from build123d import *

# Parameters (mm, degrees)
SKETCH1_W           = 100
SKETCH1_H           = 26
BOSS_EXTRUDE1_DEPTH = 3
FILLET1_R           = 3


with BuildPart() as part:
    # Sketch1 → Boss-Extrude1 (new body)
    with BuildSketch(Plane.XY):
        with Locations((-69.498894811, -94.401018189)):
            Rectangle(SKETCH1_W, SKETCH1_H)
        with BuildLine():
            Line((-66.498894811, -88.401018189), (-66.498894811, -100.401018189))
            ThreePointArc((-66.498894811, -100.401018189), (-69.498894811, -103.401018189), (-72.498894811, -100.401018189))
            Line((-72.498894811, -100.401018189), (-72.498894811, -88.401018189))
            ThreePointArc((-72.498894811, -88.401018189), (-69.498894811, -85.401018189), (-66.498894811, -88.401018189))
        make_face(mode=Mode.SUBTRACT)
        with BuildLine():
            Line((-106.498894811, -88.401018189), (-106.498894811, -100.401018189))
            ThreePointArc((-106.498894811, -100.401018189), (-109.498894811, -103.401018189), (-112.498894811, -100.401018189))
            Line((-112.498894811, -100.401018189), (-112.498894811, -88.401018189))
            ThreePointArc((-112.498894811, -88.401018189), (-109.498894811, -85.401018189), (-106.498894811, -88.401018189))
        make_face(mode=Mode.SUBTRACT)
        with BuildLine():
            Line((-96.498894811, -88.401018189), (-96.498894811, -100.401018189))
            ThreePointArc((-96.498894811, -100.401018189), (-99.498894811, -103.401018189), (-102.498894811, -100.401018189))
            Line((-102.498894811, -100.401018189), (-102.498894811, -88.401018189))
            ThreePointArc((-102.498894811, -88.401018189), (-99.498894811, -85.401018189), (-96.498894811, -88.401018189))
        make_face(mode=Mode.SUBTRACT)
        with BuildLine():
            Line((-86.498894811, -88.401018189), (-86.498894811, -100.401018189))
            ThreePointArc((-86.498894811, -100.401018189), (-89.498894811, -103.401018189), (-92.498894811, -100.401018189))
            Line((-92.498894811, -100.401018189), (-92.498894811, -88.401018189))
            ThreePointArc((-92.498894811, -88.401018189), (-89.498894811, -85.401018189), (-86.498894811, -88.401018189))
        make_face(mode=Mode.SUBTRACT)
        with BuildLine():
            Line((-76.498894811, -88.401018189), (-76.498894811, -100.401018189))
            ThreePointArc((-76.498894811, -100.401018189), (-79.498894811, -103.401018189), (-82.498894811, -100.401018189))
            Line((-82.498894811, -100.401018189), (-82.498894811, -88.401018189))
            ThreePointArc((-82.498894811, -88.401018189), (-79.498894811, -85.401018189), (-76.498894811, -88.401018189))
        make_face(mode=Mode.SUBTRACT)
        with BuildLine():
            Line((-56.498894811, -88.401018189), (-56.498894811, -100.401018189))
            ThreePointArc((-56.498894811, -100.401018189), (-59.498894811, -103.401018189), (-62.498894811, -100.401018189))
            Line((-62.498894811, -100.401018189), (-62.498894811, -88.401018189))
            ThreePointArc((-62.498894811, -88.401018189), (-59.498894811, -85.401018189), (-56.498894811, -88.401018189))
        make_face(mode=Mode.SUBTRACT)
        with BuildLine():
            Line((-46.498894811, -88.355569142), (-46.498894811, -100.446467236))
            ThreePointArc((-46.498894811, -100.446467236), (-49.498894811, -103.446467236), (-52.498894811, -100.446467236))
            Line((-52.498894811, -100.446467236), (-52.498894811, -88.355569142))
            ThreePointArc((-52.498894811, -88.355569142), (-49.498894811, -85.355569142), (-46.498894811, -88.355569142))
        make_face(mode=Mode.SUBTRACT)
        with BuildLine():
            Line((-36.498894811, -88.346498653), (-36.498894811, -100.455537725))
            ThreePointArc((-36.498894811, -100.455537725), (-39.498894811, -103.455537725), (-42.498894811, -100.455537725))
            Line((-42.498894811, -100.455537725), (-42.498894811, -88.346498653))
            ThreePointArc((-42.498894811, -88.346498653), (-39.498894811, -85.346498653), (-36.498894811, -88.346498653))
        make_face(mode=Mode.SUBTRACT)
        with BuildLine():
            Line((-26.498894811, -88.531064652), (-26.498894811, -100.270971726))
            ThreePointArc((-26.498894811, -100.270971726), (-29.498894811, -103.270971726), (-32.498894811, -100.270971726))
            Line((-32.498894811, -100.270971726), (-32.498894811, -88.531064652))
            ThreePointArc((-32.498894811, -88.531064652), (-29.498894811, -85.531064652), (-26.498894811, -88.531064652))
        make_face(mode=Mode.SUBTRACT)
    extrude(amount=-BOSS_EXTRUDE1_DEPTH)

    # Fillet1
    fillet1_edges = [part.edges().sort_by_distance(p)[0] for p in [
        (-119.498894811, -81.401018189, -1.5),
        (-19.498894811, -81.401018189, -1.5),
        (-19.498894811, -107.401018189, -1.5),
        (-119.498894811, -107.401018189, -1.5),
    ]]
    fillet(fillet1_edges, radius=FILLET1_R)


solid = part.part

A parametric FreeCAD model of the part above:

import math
import FreeCAD as App
import Part
import Sketcher


def edges_at(feature, points):
    """Names of the edges that pass closest to the given points."""
    edges = feature.Shape.Edges
    near = lambda p: min(range(len(edges)), key=lambda i: edges[i].distToShape(Part.Vertex(*p))[0])
    return sorted({f"Edge{near(p) + 1}" for p in points})


def add_polygon(sketch, points):
    """Adds a closed chain of lines whose ends are joined by coincident constraints."""
    first, n = sketch.GeometryCount, len(points)
    for a, b in zip(points, points[1:] + points[:1]):
        sketch.addGeometry(Part.LineSegment(App.Vector(*a, 0), App.Vector(*b, 0)), False)
    for i in range(n):
        sketch.addConstraint(Sketcher.Constraint("Coincident", first + i, 2, first + (i + 1) % n, 1))

doc = App.newDocument("Part")
params = doc.addObject("Spreadsheet::Sheet", "Params")
for row, (alias, value) in enumerate([
    ("sketch1_radius", "3 mm"),
    ("sketch1_width", "100 mm"),
    ("sketch1_height", "26 mm"),
    ("sketch1_height2", "12 mm"),
    ("pad1_length", "3 mm"),
    ("fillet_radius", "3 mm"),
], start=1):
    params.set(f"A{row}", alias)
    params.set(f"B{row}", "=" + value)
    params.setAlias(f"B{row}", alias)

body = doc.addObject("PartDesign::Body", "Body")

# Sketch on XY plane
sketch1 = doc.addObject("Sketcher::SketchObject", "Sketch")
body.addObject(sketch1)
sketch1.AttachmentSupport = (doc.XY_Plane, [""])
sketch1.MapMode = "FlatFace"
add_polygon(sketch1, [(-119.5, -81.4), (-119.5, -107.4), (-19.5, -107.4), (-19.5, -81.4)])  # lines 0-3
sketch1.addGeometry(Part.ArcOfCircle(Part.Circle(App.Vector(-109.5, -88.4, 0), App.Vector(0, 0, 1), 3), math.radians(0), math.radians(180)), False)  # 4
sketch1.addGeometry(Part.LineSegment(App.Vector(-106.5, -88.4, 0), App.Vector(-106.5, -100.4, 0)), False)  # 5
sketch1.addGeometry(Part.ArcOfCircle(Part.Circle(App.Vector(-109.5, -100.4, 0), App.Vector(0, 0, 1), 3), math.radians(180), math.radians(360)), False)  # 6
sketch1.addGeometry(Part.LineSegment(App.Vector(-112.5, -100.4, 0), App.Vector(-112.5, -88.4, 0)), False)  # 7
sketch1.addGeometry(Part.ArcOfCircle(Part.Circle(App.Vector(-99.5, -88.4, 0), App.Vector(0, 0, 1), 3), math.radians(0), math.radians(180)), False)  # 8
sketch1.addGeometry(Part.LineSegment(App.Vector(-96.5, -88.4, 0), App.Vector(-96.5, -100.4, 0)), False)  # 9
sketch1.addGeometry(Part.ArcOfCircle(Part.Circle(App.Vector(-99.5, -100.4, 0), App.Vector(0, 0, 1), 3), math.radians(180), math.radians(360)), False)  # 10
sketch1.addGeometry(Part.LineSegment(App.Vector(-102.5, -100.4, 0), App.Vector(-102.5, -88.4, 0)), False)  # 11
sketch1.addGeometry(Part.ArcOfCircle(Part.Circle(App.Vector(-89.5, -88.4, 0), App.Vector(0, 0, 1), 3), math.radians(0), math.radians(180)), False)  # 12
sketch1.addGeometry(Part.LineSegment(App.Vector(-86.5, -88.4, 0), App.Vector(-86.5, -100.4, 0)), False)  # 13
sketch1.addGeometry(Part.ArcOfCircle(Part.Circle(App.Vector(-89.5, -100.4, 0), App.Vector(0, 0, 1), 3), math.radians(180), math.radians(360)), False)  # 14
sketch1.addGeometry(Part.LineSegment(App.Vector(-92.5, -100.4, 0), App.Vector(-92.5, -88.4, 0)), False)  # 15
sketch1.addGeometry(Part.ArcOfCircle(Part.Circle(App.Vector(-79.5, -88.4, 0), App.Vector(0, 0, 1), 3), math.radians(0), math.radians(180)), False)  # 16
sketch1.addGeometry(Part.LineSegment(App.Vector(-76.5, -88.4, 0), App.Vector(-76.5, -100.4, 0)), False)  # 17
sketch1.addGeometry(Part.ArcOfCircle(Part.Circle(App.Vector(-79.5, -100.4, 0), App.Vector(0, 0, 1), 3), math.radians(180), math.radians(360)), False)  # 18
sketch1.addGeometry(Part.LineSegment(App.Vector(-82.5, -100.4, 0), App.Vector(-82.5, -88.4, 0)), False)  # 19
sketch1.addGeometry(Part.ArcOfCircle(Part.Circle(App.Vector(-69.5, -88.4, 0), App.Vector(0, 0, 1), 3), math.radians(0), math.radians(180)), False)  # 20
sketch1.addGeometry(Part.LineSegment(App.Vector(-66.5, -88.4, 0), App.Vector(-66.5, -100.4, 0)), False)  # 21
sketch1.addGeometry(Part.ArcOfCircle(Part.Circle(App.Vector(-69.5, -100.4, 0), App.Vector(0, 0, 1), 3), math.radians(180), math.radians(360)), False)  # 22
sketch1.addGeometry(Part.LineSegment(App.Vector(-72.5, -100.4, 0), App.Vector(-72.5, -88.4, 0)), False)  # 23
sketch1.addGeometry(Part.ArcOfCircle(Part.Circle(App.Vector(-59.5, -88.4, 0), App.Vector(0, 0, 1), 3), math.radians(0), math.radians(180)), False)  # 24
sketch1.addGeometry(Part.LineSegment(App.Vector(-56.5, -88.4, 0), App.Vector(-56.5, -100.4, 0)), False)  # 25
sketch1.addGeometry(Part.ArcOfCircle(Part.Circle(App.Vector(-59.5, -100.4, 0), App.Vector(0, 0, 1), 3), math.radians(180), math.radians(360)), False)  # 26
sketch1.addGeometry(Part.LineSegment(App.Vector(-62.5, -100.4, 0), App.Vector(-62.5, -88.4, 0)), False)  # 27
sketch1.addGeometry(Part.ArcOfCircle(Part.Circle(App.Vector(-49.5, -88.4, 0), App.Vector(0, 0, 1), 3), math.radians(0), math.radians(180)), False)  # 28
sketch1.addGeometry(Part.LineSegment(App.Vector(-46.5, -88.4, 0), App.Vector(-46.5, -100.4, 0)), False)  # 29
sketch1.addGeometry(Part.ArcOfCircle(Part.Circle(App.Vector(-49.5, -100.4, 0), App.Vector(0, 0, 1), 3), math.radians(180), math.radians(360)), False)  # 30
sketch1.addGeometry(Part.LineSegment(App.Vector(-52.5, -100.4, 0), App.Vector(-52.5, -88.4, 0)), False)  # 31
sketch1.addGeometry(Part.ArcOfCircle(Part.Circle(App.Vector(-39.5, -88.3, 0), App.Vector(0, 0, 1), 3), math.radians(0), math.radians(180)), False)  # 32
sketch1.addGeometry(Part.LineSegment(App.Vector(-36.5, -88.3, 0), App.Vector(-36.5, -100.5, 0)), False)  # 33
sketch1.addGeometry(Part.ArcOfCircle(Part.Circle(App.Vector(-39.5, -100.5, 0), App.Vector(0, 0, 1), 3), math.radians(180), math.radians(360)), False)  # 34
sketch1.addGeometry(Part.LineSegment(App.Vector(-42.5, -100.5, 0), App.Vector(-42.5, -88.3, 0)), False)  # 35
sketch1.addGeometry(Part.ArcOfCircle(Part.Circle(App.Vector(-29.5, -88.5, 0), App.Vector(0, 0, 1), 3), math.radians(0), math.radians(180)), False)  # 36
sketch1.addGeometry(Part.LineSegment(App.Vector(-26.5, -88.5, 0), App.Vector(-26.5, -100.3, 0)), False)  # 37
sketch1.addGeometry(Part.ArcOfCircle(Part.Circle(App.Vector(-29.5, -100.3, 0), App.Vector(0, 0, 1), 3), math.radians(180), math.radians(360)), False)  # 38
sketch1.addGeometry(Part.LineSegment(App.Vector(-32.5, -100.3, 0), App.Vector(-32.5, -88.5, 0)), False)  # 39
sketch1.addConstraint(Sketcher.Constraint("Tangent", 4, 1, 5, 1))
sketch1.addConstraint(Sketcher.Constraint("Tangent", 5, 2, 6, 2))
sketch1.addConstraint(Sketcher.Constraint("Tangent", 6, 1, 7, 1))
sketch1.addConstraint(Sketcher.Constraint("Tangent", 7, 2, 4, 2))
sketch1.addConstraint(Sketcher.Constraint("Tangent", 8, 1, 9, 1))
sketch1.addConstraint(Sketcher.Constraint("Tangent", 9, 2, 10, 2))
sketch1.addConstraint(Sketcher.Constraint("Tangent", 10, 1, 11, 1))
sketch1.addConstraint(Sketcher.Constraint("Tangent", 11, 2, 8, 2))
sketch1.addConstraint(Sketcher.Constraint("Tangent", 12, 1, 13, 1))
sketch1.addConstraint(Sketcher.Constraint("Tangent", 13, 2, 14, 2))
sketch1.addConstraint(Sketcher.Constraint("Tangent", 14, 1, 15, 1))
sketch1.addConstraint(Sketcher.Constraint("Tangent", 15, 2, 12, 2))
sketch1.addConstraint(Sketcher.Constraint("Tangent", 16, 1, 17, 1))
sketch1.addConstraint(Sketcher.Constraint("Tangent", 17, 2, 18, 2))
sketch1.addConstraint(Sketcher.Constraint("Tangent", 18, 1, 19, 1))
sketch1.addConstraint(Sketcher.Constraint("Tangent", 19, 2, 16, 2))
sketch1.addConstraint(Sketcher.Constraint("Tangent", 20, 1, 21, 1))
sketch1.addConstraint(Sketcher.Constraint("Tangent", 21, 2, 22, 2))
sketch1.addConstraint(Sketcher.Constraint("Tangent", 22, 1, 23, 1))
sketch1.addConstraint(Sketcher.Constraint("Tangent", 23, 2, 20, 2))
sketch1.addConstraint(Sketcher.Constraint("Tangent", 24, 1, 25, 1))
sketch1.addConstraint(Sketcher.Constraint("Tangent", 25, 2, 26, 2))
sketch1.addConstraint(Sketcher.Constraint("Tangent", 26, 1, 27, 1))
sketch1.addConstraint(Sketcher.Constraint("Tangent", 27, 2, 24, 2))
sketch1.addConstraint(Sketcher.Constraint("Tangent", 28, 1, 29, 1))
sketch1.addConstraint(Sketcher.Constraint("Tangent", 29, 2, 30, 2))
sketch1.addConstraint(Sketcher.Constraint("Tangent", 30, 1, 31, 1))
sketch1.addConstraint(Sketcher.Constraint("Tangent", 31, 2, 28, 2))
sketch1.addConstraint(Sketcher.Constraint("Tangent", 32, 1, 33, 1))
sketch1.addConstraint(Sketcher.Constraint("Tangent", 33, 2, 34, 2))
sketch1.addConstraint(Sketcher.Constraint("Tangent", 34, 1, 35, 1))
sketch1.addConstraint(Sketcher.Constraint("Tangent", 35, 2, 32, 2))
sketch1.addConstraint(Sketcher.Constraint("Tangent", 36, 1, 37, 1))
sketch1.addConstraint(Sketcher.Constraint("Tangent", 37, 2, 38, 2))
sketch1.addConstraint(Sketcher.Constraint("Tangent", 38, 1, 39, 1))
sketch1.addConstraint(Sketcher.Constraint("Tangent", 39, 2, 36, 2))
sketch1.addConstraint(Sketcher.Constraint("Vertical", 0))
sketch1.addConstraint(Sketcher.Constraint("Horizontal", 1))
sketch1.addConstraint(Sketcher.Constraint("Vertical", 2))
sketch1.addConstraint(Sketcher.Constraint("Horizontal", 3))
sketch1.addConstraint(Sketcher.Constraint("Vertical", 5))
sketch1.addConstraint(Sketcher.Constraint("Vertical", 7))
sketch1.addConstraint(Sketcher.Constraint("Vertical", 9))
sketch1.addConstraint(Sketcher.Constraint("Vertical", 11))
sketch1.addConstraint(Sketcher.Constraint("Vertical", 13))
sketch1.addConstraint(Sketcher.Constraint("Vertical", 15))
sketch1.addConstraint(Sketcher.Constraint("Vertical", 17))
sketch1.addConstraint(Sketcher.Constraint("Vertical", 19))
sketch1.addConstraint(Sketcher.Constraint("Vertical", 21))
sketch1.addConstraint(Sketcher.Constraint("Vertical", 23))
sketch1.addConstraint(Sketcher.Constraint("Vertical", 25))
sketch1.addConstraint(Sketcher.Constraint("Vertical", 27))
sketch1.addConstraint(Sketcher.Constraint("Vertical", 29))
sketch1.addConstraint(Sketcher.Constraint("Vertical", 31))
sketch1.addConstraint(Sketcher.Constraint("Vertical", 33))
sketch1.addConstraint(Sketcher.Constraint("Vertical", 35))
sketch1.addConstraint(Sketcher.Constraint("Vertical", 37))
sketch1.addConstraint(Sketcher.Constraint("Vertical", 39))
sketch1.addConstraint(Sketcher.Constraint("Equal", 6, 8))
sketch1.addConstraint(Sketcher.Constraint("Equal", 10, 12))
sketch1.addConstraint(Sketcher.Constraint("Equal", 14, 16))
sketch1.addConstraint(Sketcher.Constraint("Equal", 18, 20))
sketch1.addConstraint(Sketcher.Constraint("Equal", 22, 24))
sketch1.addConstraint(Sketcher.Constraint("Equal", 26, 28))
sketch1.addConstraint(Sketcher.Constraint("Equal", 30, 32))
sketch1.addConstraint(Sketcher.Constraint("Equal", 34, 36))
sketch1.addConstraint(Sketcher.Constraint("Horizontal", 4, 3, 8, 3))
sketch1.addConstraint(Sketcher.Constraint("Horizontal", 6, 3, 10, 3))
sketch1.addConstraint(Sketcher.Constraint("Horizontal", 8, 3, 12, 3))
sketch1.addConstraint(Sketcher.Constraint("Horizontal", 10, 3, 14, 3))
sketch1.addConstraint(Sketcher.Constraint("Horizontal", 12, 3, 16, 3))
sketch1.addConstraint(Sketcher.Constraint("Horizontal", 14, 3, 18, 3))
sketch1.addConstraint(Sketcher.Constraint("Horizontal", 16, 3, 20, 3))
sketch1.addConstraint(Sketcher.Constraint("Horizontal", 18, 3, 22, 3))
sketch1.addConstraint(Sketcher.Constraint("Horizontal", 20, 3, 24, 3))
sketch1.addConstraint(Sketcher.Constraint("Horizontal", 22, 3, 26, 3))
sketch1.addConstraint(Sketcher.Constraint("Radius", 4, 3.0))
sketch1.addConstraint(Sketcher.Constraint("DistanceX", 1, 1, 1, 2, 100.0))
sketch1.addConstraint(Sketcher.Constraint("DistanceY", 0, 2, 0, 1, 26.0))
sketch1.addConstraint(Sketcher.Constraint("DistanceY", 5, 2, 5, 1, 12.0))
sketch1.addConstraint(Sketcher.Constraint("DistanceX", 4, 3, 8, 3, 10.0))
sketch1.addConstraint(Sketcher.Constraint("DistanceX", 8, 3, 12, 3, 10.0))
sketch1.addConstraint(Sketcher.Constraint("DistanceX", 12, 3, 16, 3, 10.0))
sketch1.addConstraint(Sketcher.Constraint("DistanceX", 16, 3, 20, 3, 10.0))
sketch1.addConstraint(Sketcher.Constraint("DistanceX", 20, 3, 24, 3, 10.0))
sketch1.addConstraint(Sketcher.Constraint("DistanceX", 24, 3, 28, 3, 10.0))
sketch1.addConstraint(Sketcher.Constraint("DistanceX", 28, 3, 32, 3, 10.0))
sketch1.addConstraint(Sketcher.Constraint("DistanceX", 32, 3, 36, 3, 10.0))
sketch1.addConstraint(Sketcher.Constraint("DistanceX", 0, 2, 6, 3, 10.0))
sketch1.addConstraint(Sketcher.Constraint("DistanceY", 0, 2, 6, 3, 7.0))
sketch1.addConstraint(Sketcher.Constraint("DistanceY", 29, 2, 29, 1, 12.090898))
sketch1.addConstraint(Sketcher.Constraint("DistanceY", 33, 2, 33, 1, 12.109039))
sketch1.addConstraint(Sketcher.Constraint("DistanceY", 32, 3, -1, 1, 88.346499))
sketch1.addConstraint(Sketcher.Constraint("DistanceY", 37, 2, 37, 1, 11.739907))
sketch1.addConstraint(Sketcher.Constraint("DistanceY", 4, 3, -1, 1, 88.401018))
sketch1.addConstraint(Sketcher.Constraint("DistanceY", 28, 3, -1, 1, 88.355569))
sketch1.addConstraint(Sketcher.Constraint("DistanceY", 38, 3, -1, 1, 100.270972))
sketch1.addConstraint(Sketcher.Constraint("DistanceX", 4, 3, -1, 1, 109.498895))
sketch1.setExpression("Constraints[80]", "Params.sketch1_radius")
sketch1.setExpression("Constraints[81]", "Params.sketch1_width")
sketch1.setExpression("Constraints[82]", "Params.sketch1_height")
sketch1.setExpression("Constraints[83]", "Params.sketch1_height2")
pad1 = doc.addObject("PartDesign::Pad", "Pad")
body.addObject(pad1)
pad1.Profile = sketch1
pad1.setExpression("Length", "Params.pad1_length")
pad1.Reversed = True
doc.recompute()

fillet = doc.addObject("PartDesign::Fillet", "Fillet")
body.addObject(fillet)
fillet.Base = (pad1, edges_at(pad1, [
    (-119.499, -81.401, -1.5),
    (-19.499, -81.401, -1.5),
    (-19.499, -107.401, -1.5),
    (-119.499, -107.401, -1.5),
]))
fillet.setExpression("Radius", "Params.fillet_radius")

doc.recompute()
